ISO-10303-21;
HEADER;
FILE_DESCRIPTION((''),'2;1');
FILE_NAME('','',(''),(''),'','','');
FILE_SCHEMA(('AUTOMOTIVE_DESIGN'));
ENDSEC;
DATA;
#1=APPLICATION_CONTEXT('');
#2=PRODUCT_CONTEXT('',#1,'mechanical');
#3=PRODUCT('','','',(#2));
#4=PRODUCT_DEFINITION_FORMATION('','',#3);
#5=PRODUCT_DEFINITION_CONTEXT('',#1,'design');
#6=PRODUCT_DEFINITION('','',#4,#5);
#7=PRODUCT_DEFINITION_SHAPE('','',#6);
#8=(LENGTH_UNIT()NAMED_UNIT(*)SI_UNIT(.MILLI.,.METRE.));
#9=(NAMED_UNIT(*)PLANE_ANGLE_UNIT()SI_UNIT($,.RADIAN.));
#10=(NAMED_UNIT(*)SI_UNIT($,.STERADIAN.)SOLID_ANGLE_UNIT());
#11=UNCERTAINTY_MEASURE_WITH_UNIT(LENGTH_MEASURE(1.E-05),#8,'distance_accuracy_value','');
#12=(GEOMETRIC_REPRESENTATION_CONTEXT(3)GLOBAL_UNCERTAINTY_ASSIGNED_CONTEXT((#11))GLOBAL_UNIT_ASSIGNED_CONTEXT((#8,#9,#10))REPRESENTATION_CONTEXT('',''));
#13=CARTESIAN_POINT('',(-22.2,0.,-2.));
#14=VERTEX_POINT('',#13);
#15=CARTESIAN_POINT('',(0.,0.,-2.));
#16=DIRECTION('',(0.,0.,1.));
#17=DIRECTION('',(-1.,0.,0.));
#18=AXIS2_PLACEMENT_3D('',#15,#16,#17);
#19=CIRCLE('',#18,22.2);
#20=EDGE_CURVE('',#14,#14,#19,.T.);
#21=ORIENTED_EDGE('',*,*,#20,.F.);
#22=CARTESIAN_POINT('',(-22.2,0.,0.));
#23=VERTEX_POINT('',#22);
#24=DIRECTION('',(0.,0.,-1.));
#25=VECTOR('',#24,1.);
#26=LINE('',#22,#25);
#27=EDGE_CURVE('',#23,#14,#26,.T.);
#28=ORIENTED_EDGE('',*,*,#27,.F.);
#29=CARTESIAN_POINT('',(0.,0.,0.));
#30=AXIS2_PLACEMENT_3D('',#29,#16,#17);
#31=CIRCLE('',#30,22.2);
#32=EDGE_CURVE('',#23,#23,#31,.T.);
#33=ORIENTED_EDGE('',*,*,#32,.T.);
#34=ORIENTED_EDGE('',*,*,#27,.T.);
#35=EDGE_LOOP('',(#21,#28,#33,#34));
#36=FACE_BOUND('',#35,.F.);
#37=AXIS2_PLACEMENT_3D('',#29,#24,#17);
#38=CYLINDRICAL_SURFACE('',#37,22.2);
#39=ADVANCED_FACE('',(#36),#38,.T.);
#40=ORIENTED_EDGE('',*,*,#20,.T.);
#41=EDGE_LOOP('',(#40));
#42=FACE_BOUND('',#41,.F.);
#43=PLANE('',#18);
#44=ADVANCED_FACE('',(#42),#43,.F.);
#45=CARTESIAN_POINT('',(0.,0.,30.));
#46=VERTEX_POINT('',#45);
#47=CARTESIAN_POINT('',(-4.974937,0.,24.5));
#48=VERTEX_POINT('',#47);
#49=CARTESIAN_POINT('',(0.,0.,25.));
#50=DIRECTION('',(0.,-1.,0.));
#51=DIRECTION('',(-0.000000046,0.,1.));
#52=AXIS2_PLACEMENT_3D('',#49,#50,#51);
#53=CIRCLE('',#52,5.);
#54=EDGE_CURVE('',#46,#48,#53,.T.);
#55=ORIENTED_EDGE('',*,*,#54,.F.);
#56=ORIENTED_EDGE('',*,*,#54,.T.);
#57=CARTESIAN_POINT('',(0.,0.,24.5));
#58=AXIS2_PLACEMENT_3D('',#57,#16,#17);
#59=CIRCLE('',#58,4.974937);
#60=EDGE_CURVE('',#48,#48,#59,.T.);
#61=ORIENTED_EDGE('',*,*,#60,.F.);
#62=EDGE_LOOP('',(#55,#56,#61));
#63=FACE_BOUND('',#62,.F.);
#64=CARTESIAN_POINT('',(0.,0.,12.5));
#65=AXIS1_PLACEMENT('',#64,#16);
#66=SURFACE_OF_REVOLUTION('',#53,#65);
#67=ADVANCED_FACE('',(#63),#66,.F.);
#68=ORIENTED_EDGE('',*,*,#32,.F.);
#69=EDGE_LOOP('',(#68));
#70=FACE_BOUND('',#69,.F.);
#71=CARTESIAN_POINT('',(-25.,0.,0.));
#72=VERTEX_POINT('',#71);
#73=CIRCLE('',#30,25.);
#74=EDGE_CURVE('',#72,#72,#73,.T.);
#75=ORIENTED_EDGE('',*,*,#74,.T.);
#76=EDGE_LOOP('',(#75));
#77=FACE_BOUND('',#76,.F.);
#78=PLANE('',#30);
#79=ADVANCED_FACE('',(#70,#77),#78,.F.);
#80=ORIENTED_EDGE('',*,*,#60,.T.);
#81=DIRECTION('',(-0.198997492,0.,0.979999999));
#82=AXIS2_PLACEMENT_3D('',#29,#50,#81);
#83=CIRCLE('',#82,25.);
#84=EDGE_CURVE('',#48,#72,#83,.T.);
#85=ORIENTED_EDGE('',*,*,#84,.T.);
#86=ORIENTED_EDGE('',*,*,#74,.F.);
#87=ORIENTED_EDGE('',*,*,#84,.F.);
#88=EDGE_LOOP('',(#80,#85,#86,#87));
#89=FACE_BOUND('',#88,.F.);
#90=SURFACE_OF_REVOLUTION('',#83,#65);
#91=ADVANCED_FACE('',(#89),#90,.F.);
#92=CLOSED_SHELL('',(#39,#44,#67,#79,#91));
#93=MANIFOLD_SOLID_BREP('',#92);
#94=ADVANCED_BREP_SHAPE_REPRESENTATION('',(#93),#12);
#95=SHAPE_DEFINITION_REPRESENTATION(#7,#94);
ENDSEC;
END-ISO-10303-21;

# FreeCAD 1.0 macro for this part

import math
import FreeCAD as App
import Part
import Sketcher
from FreeCAD import Vector

doc = App.newDocument("Part")
body = doc.addObject("PartDesign::Body", "Body")

# Sketch on XZ plane
sketch1 = doc.addObject("Sketcher::SketchObject", "Sketch")
body.addObject(sketch1)
sketch1.AttachmentSupport = (doc.XZ_Plane, [""])
sketch1.MapMode = "FlatFace"
sketch1.addGeometry(Part.ArcOfCircle(Part.Circle(Vector(0, 25, 0), Vector(0, 0, 1), 5), math.radians(90), math.radians(186)), False)
sketch1.addGeometry(Part.ArcOfCircle(Part.Circle(Vector(0, 0, 0), Vector(0, 0, 1), 25), math.radians(101), math.radians(180)), False)
sketch1.addGeometry(Part.LineSegment(Vector(-25, 0, 0), Vector(-22.2, 0, 0)), False)
sketch1.addGeometry(Part.LineSegment(Vector(-22.2, 0, 0), Vector(-22.2, -2, 0)), False)
sketch1.addGeometry(Part.LineSegment(Vector(-22.2, -2, 0), Vector(0, -2, 0)), False)
sketch1.addGeometry(Part.LineSegment(Vector(0, -2, 0), Vector(0, 30, 0)), False)
sketch1.addConstraint(Sketcher.Constraint("Coincident", 0, 2, 1, 1))
sketch1.addConstraint(Sketcher.Constraint("Coincident", 1, 2, 2, 1))
sketch1.addConstraint(Sketcher.Constraint("Coincident", 2, 2, 3, 1))
sketch1.addConstraint(Sketcher.Constraint("Coincident", 3, 2, 4, 1))
sketch1.addConstraint(Sketcher.Constraint("Coincident", 4, 2, 5, 1))
sketch1.addConstraint(Sketcher.Constraint("Coincident", 5, 2, 0, 1))
sketch1.addConstraint(Sketcher.Constraint("Horizontal", 2))
sketch1.addConstraint(Sketcher.Constraint("Vertical", 3))
sketch1.addConstraint(Sketcher.Constraint("Horizontal", 4))
sketch1.addConstraint(Sketcher.Constraint("Vertical", 5))
sketch1.addConstraint(Sketcher.Constraint("Coincident", 1, 3, -1, 1))
sketch1.addConstraint(Sketcher.Constraint("PointOnObject", 0, 3, -2))
sketch1.addConstraint(Sketcher.Constraint("PointOnObject", 1, 2, -1))
sketch1.addConstraint(Sketcher.Constraint("PointOnObject", 4, 2, -2))
sketch1.addConstraint(Sketcher.Constraint("Radius", 0, 5.0))
sketch1.addConstraint(Sketcher.Constraint("Radius", 1, 25.0))
sketch1.addConstraint(Sketcher.Constraint("DistanceY", 3, 2, 3, 1, 2.0))
sketch1.addConstraint(Sketcher.Constraint("DistanceY", 5, 1, 5, 2, 32.0))
sketch1.addConstraint(Sketcher.Constraint("DistanceX", 2, 1, 2, 2, 2.8))
revolution = doc.addObject("PartDesign::Revolution", "Revolution")
body.addObject(revolution)
revolution.Profile = sketch1
revolution.ReferenceAxis = (sketch1, ["V_Axis"])
revolution.Angle = 360

doc.recompute()
